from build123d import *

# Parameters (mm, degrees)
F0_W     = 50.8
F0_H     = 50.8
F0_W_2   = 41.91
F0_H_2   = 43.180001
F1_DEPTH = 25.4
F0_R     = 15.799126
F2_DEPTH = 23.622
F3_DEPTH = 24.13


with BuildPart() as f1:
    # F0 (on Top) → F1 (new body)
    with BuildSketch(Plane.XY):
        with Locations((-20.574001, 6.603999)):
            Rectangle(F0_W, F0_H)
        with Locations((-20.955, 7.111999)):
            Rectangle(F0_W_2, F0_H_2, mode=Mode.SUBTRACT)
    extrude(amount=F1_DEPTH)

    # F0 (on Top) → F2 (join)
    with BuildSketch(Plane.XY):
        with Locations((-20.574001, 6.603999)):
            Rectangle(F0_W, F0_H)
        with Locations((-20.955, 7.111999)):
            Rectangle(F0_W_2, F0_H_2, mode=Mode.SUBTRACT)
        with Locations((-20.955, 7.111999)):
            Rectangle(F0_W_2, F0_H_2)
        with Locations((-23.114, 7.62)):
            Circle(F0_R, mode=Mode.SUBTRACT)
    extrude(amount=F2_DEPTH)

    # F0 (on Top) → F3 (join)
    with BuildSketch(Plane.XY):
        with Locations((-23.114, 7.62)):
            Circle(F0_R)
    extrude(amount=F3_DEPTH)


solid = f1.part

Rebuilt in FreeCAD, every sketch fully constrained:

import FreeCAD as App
import Part
import Sketcher

V = App.Vector
Q = App.Units.Quantity


def add_polygon(sketch, points):
    """Adds a closed chain of lines whose ends are joined by coincident constraints."""
    first, n = sketch.GeometryCount, len(points)
    for a, b in zip(points, points[1:] + points[:1]):
        sketch.addGeometry(Part.LineSegment(App.Vector(*a, 0), App.Vector(*b, 0)), False)
    for i in range(n):
        sketch.addConstraint(Sketcher.Constraint("Coincident", first + i, 2, first + (i + 1) % n, 1))

doc = App.newDocument("Part")
body = doc.addObject("PartDesign::Body", "Body")

# Sketch on XY plane
sketch1 = body.newObject("Sketcher::SketchObject", "Sketch")
sketch1.AttachmentSupport = (doc.getObject("XY_Plane"), [""])
sketch1.MapMode = "FlatFace"
add_polygon(sketch1, [(-46, 32), (-46, -19), (5, -19), (5, 32)])  # lines 0-3
add_polygon(sketch1, [(0, -14), (-42, -14), (-42, 29), (0, 29)])  # lines 4-7
sketch1.addConstraint([
    Sketcher.Constraint("Vertical", 0),
    Sketcher.Constraint("Horizontal", 1),
    Sketcher.Constraint("Vertical", 2),
    Sketcher.Constraint("Horizontal", 3),
    Sketcher.Constraint("Horizontal", 4),
    Sketcher.Constraint("Vertical", 5),
    Sketcher.Constraint("Horizontal", 6),
    Sketcher.Constraint("Vertical", 7),
    Sketcher.Constraint("PointOnObject", 6, 2, -2),
    Sketcher.Constraint("Equal", 3, 0),
    Sketcher.Constraint("DistanceX", 1, 1, 1, 2, Q("2 in")),
    Sketcher.Constraint("DistanceY", 5, 1, 5, 2, Q("1.7 in")),
    Sketcher.Constraint("DistanceX", 4, 2, 4, 1, Q("1.65 in")),
    Sketcher.Constraint("DistanceX", 0, 2, -1, 1, Q("1.81 in")),
    Sketcher.Constraint("DistanceY", 0, 2, -1, 1, Q("0.74 in")),
    Sketcher.Constraint("DistanceY", 4, 2, -1, 1, Q("0.5700001 in")),
])
pad1 = body.newObject("PartDesign::Pad", "Pad")
pad1.Profile = sketch1
pad1.Length = Q("1 in")

# Sketch on XY plane
sketch2 = body.newObject("Sketcher::SketchObject", "Sketch001")
sketch2.AttachmentSupport = (doc.getObject("XY_Plane"), [""])
sketch2.MapMode = "FlatFace"
add_polygon(sketch2, [(-46, 32), (-46, -19), (5, -19), (5, 32)])  # lines 0-3
sketch2.addGeometry(Part.Circle(V(-23, 8, 0), V(0, 0, 1), 16), False)  # 4
sketch2.addConstraint([
    Sketcher.Constraint("Vertical", 0),
    Sketcher.Constraint("Horizontal", 1),
    Sketcher.Constraint("Vertical", 2),
    Sketcher.Constraint("Horizontal", 3),
    Sketcher.Constraint("Equal", 3, 0),
    Sketcher.Constraint("DistanceX", 1, 1, 1, 2, Q("2 in")),
    Sketcher.Constraint("DistanceY", -1, 1, 4, 3, Q("0.3 in")),
    Sketcher.Constraint("DistanceX", 0, 2, 4, 3, Q("0.9 in")),
    Sketcher.Constraint("DistanceX", 4, 3, -1, 1, Q("0.91 in")),
    Sketcher.Constraint("DistanceY", 0, 2, -1, 1, Q("0.74 in")),
    Sketcher.Constraint("Diameter", 4, Q("31.598252 mm")),
])
pad2 = body.newObject("PartDesign::Pad", "Pad001")
pad2.Profile = sketch2
pad2.Length = Q("0.93 in")

# Sketch on XY plane
sketch3 = body.newObject("Sketcher::SketchObject", "Sketch002")
sketch3.AttachmentSupport = (doc.getObject("XY_Plane"), [""])
sketch3.MapMode = "FlatFace"
sketch3.addGeometry(Part.Circle(V(-23, 8, 0), V(0, 0, 1), 16), False)
sketch3.addConstraint([
    Sketcher.Constraint("DistanceY", -1, 1, 0, 3, Q("0.3 in")),
    Sketcher.Constraint("DistanceX", 0, 3, -1, 1, Q("0.91 in")),
    Sketcher.Constraint("Diameter", 0, Q("31.598252 mm")),
])
pad3 = body.newObject("PartDesign::Pad", "Pad002")
pad3.Profile = sketch3
pad3.Length = Q("0.95 in")

doc.recompute()
